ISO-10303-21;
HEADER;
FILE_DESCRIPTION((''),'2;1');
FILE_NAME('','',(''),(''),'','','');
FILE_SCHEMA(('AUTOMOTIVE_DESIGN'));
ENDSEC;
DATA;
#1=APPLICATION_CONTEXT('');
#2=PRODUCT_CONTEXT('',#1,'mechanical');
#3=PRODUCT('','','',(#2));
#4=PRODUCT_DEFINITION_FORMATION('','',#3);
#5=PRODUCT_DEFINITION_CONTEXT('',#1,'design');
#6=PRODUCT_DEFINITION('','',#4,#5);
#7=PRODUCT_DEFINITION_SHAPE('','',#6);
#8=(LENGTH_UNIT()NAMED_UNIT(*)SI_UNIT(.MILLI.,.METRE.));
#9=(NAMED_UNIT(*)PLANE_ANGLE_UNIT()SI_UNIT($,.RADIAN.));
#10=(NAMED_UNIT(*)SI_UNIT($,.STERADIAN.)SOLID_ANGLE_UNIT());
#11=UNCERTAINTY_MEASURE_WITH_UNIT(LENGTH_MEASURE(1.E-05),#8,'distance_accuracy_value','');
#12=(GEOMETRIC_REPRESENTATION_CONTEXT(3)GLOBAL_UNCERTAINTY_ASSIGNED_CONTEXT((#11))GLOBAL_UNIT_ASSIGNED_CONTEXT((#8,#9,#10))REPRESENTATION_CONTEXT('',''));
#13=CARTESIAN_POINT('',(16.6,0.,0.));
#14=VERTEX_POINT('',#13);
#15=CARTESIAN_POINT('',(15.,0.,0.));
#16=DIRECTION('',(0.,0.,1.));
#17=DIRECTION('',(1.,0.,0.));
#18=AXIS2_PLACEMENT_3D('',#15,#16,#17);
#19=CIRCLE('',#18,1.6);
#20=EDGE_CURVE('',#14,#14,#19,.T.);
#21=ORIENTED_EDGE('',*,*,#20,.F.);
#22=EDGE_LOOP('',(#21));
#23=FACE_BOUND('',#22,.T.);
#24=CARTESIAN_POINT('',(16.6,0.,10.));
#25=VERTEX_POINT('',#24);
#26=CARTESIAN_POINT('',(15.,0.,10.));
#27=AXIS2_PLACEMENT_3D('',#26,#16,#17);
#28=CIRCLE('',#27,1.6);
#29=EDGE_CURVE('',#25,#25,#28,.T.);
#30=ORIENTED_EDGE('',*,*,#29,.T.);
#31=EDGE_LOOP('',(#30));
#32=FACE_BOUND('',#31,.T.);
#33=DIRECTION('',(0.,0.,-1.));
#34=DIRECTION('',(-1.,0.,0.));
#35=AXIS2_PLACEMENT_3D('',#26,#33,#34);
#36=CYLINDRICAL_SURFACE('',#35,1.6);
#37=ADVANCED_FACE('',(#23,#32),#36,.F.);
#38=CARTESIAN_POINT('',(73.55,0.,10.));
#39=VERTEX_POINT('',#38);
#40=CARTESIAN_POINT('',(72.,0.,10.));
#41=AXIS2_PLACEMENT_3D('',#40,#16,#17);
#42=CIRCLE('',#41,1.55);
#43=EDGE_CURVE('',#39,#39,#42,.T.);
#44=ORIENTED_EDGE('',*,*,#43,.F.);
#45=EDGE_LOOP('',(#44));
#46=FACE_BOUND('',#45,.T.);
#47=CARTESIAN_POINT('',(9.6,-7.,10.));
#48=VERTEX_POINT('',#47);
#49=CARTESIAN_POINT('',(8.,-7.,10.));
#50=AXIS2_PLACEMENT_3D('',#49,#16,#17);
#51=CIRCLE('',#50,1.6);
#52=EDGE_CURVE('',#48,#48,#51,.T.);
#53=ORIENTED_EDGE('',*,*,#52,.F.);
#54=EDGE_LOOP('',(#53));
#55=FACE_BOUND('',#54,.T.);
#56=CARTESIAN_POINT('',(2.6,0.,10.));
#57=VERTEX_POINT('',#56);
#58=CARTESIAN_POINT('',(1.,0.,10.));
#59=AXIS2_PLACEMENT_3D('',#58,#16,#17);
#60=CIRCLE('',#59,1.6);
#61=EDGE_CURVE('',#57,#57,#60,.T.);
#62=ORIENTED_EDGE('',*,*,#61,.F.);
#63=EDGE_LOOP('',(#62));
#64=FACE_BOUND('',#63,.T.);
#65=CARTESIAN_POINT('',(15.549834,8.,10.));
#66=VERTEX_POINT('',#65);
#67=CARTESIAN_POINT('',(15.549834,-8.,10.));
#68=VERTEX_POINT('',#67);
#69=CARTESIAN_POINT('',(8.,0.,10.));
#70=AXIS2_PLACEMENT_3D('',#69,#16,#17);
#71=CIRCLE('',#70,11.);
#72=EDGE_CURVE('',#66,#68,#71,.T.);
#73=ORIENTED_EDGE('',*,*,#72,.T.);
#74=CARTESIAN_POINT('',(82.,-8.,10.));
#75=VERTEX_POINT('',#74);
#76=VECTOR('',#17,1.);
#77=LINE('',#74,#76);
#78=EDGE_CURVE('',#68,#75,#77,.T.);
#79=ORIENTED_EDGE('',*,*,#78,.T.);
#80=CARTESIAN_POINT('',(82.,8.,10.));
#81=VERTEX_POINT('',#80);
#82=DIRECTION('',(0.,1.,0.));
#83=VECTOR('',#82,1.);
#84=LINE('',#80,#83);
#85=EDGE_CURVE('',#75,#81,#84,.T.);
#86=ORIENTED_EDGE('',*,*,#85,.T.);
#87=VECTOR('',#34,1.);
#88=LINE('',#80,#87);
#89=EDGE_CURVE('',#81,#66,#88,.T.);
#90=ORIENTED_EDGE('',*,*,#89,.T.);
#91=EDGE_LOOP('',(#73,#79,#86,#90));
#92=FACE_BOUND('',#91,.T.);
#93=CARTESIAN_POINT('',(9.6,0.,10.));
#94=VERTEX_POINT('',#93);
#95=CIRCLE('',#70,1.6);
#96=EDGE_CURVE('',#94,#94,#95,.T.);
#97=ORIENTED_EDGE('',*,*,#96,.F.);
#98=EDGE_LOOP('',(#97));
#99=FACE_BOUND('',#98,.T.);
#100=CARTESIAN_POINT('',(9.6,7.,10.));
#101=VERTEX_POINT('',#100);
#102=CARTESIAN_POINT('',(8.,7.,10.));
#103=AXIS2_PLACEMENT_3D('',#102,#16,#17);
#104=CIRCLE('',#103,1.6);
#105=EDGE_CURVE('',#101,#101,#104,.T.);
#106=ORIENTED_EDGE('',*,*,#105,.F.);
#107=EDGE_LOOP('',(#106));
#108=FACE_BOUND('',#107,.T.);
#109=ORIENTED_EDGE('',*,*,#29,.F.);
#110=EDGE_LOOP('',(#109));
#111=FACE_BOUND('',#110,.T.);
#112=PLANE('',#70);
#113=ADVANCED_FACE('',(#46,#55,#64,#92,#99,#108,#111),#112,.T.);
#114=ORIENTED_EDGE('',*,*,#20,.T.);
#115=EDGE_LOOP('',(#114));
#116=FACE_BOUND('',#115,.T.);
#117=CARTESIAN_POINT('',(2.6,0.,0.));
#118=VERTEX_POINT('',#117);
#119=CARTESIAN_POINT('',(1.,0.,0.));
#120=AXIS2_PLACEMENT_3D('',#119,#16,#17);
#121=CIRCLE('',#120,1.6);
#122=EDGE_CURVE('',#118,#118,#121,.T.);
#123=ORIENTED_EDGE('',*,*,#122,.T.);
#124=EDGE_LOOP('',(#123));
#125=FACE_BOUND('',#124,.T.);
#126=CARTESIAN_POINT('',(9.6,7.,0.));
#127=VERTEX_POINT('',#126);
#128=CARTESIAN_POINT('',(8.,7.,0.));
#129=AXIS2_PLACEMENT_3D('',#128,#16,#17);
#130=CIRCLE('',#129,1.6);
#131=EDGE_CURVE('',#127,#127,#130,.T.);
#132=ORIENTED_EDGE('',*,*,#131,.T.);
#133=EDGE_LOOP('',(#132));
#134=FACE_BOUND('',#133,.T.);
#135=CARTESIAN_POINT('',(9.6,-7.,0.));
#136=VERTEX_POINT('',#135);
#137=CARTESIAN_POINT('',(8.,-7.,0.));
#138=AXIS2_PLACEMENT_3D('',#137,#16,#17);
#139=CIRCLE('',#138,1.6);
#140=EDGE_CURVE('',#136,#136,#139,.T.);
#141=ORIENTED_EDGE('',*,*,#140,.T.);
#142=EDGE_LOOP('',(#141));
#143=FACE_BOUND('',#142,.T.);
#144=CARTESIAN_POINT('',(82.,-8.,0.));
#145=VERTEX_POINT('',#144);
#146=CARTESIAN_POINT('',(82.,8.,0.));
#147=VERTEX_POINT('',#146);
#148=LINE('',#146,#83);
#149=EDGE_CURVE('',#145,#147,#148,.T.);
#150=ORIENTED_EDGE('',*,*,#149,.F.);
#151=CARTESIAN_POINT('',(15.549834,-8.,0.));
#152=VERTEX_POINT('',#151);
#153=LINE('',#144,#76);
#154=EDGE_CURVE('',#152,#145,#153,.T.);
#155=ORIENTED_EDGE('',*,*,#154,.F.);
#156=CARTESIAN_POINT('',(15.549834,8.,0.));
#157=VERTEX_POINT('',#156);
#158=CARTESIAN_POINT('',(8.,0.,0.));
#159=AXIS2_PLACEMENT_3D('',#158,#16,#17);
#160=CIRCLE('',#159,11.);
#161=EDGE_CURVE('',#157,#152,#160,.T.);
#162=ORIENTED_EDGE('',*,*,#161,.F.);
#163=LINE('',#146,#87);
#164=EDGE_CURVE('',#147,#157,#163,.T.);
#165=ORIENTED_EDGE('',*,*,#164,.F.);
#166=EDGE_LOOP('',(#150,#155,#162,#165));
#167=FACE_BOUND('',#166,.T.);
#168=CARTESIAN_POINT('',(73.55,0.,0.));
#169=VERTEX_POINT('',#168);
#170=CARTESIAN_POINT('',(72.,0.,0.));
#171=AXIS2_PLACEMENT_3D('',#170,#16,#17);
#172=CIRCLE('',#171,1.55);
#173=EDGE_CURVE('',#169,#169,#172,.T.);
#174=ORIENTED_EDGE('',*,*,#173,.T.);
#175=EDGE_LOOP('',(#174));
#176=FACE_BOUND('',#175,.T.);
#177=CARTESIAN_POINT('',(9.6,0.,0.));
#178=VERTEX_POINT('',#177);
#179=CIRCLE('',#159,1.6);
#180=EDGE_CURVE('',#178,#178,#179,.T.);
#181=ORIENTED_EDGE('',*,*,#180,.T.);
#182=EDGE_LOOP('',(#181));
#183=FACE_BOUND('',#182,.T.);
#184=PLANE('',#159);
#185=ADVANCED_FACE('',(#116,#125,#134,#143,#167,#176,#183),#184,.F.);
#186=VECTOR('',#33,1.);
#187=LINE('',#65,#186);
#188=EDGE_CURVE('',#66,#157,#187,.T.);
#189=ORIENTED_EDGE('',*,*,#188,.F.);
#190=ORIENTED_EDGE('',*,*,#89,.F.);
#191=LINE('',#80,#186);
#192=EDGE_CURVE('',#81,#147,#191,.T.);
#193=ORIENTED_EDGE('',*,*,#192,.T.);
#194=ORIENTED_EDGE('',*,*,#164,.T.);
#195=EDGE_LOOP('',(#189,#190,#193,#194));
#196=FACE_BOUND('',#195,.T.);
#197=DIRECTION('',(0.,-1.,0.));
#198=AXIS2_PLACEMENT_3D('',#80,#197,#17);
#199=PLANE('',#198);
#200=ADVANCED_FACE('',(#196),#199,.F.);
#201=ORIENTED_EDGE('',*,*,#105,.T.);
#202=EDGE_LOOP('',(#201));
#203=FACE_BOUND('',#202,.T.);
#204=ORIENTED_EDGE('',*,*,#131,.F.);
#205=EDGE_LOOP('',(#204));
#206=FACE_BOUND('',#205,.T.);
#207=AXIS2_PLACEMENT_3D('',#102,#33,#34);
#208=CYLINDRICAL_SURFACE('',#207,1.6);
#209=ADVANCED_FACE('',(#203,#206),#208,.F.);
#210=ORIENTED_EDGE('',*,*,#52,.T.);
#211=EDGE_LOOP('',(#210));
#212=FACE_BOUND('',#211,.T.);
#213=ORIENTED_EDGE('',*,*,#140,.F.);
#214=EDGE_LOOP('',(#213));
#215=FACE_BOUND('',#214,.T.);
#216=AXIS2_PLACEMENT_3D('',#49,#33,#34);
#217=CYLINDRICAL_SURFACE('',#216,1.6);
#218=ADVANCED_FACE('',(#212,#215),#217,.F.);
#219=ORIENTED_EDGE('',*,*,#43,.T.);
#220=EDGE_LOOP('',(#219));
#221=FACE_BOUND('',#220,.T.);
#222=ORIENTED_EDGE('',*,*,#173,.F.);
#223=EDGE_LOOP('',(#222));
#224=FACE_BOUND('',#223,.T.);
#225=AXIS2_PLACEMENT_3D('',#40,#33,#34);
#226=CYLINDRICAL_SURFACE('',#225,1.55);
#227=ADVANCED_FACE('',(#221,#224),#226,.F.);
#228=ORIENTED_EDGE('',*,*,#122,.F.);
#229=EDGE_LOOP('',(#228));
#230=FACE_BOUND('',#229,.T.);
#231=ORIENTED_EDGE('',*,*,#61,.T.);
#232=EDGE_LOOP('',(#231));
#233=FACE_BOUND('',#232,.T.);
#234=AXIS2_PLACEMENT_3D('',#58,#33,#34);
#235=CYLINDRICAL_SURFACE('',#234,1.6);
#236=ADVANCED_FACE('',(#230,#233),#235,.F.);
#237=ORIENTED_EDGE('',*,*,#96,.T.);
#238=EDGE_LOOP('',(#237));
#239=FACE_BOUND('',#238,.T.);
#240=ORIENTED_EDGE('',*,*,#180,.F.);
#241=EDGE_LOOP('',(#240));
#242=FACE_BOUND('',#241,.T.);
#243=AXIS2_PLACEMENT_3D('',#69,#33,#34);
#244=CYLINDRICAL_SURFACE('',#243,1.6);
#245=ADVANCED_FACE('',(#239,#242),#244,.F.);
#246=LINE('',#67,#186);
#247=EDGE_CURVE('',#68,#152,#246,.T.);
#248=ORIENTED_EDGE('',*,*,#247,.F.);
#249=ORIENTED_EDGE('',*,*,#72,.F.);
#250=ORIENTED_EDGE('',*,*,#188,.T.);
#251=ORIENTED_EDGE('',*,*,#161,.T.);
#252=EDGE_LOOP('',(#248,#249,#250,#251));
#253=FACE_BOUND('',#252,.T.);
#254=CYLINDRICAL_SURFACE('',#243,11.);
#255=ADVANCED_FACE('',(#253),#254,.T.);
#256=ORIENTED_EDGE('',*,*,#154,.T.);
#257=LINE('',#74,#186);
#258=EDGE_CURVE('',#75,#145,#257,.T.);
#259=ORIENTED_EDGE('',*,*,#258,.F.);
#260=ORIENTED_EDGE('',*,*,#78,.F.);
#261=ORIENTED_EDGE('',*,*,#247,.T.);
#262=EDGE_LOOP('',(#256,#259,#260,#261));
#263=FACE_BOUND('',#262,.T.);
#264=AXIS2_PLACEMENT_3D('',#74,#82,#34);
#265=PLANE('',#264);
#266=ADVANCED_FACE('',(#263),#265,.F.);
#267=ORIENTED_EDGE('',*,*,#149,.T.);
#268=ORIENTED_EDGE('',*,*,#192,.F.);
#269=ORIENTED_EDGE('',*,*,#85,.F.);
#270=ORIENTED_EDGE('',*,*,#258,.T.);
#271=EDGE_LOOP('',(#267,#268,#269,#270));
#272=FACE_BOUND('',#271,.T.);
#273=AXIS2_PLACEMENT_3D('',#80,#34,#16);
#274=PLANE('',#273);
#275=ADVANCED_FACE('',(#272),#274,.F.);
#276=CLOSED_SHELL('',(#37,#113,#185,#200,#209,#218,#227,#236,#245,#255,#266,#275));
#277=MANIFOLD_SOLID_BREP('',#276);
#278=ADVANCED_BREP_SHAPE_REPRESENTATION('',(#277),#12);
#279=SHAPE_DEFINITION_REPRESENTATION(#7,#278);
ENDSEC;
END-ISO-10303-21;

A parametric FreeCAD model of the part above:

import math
import FreeCAD as App
import Part
import Sketcher
from FreeCAD import Vector

doc = App.newDocument("Part")
params = doc.addObject("Spreadsheet::Sheet", "Params")
for row, (alias, value) in enumerate([
    ("sketch1_radius", "11 mm"),
    ("sketch1_diameter", "3.2 mm"),
    ("sketch1_diameter2", "3.1 mm"),
    ("sketch1_height", "16 mm"),
    ("pad1_length", "10 mm"),
], start=1):
    params.set(f"A{row}", alias)
    params.set(f"B{row}", "=" + value)
    params.setAlias(f"B{row}", alias)

body = doc.addObject("PartDesign::Body", "Body")

# Sketch on XY plane
sketch1 = body.newObject("Sketcher::SketchObject", "Sketch")
sketch1.AttachmentSupport = (doc.getObject("XY_Plane"), [""])
sketch1.MapMode = "FlatFace"
sketch1.addGeometry(Part.LineSegment(Vector(82, -8, 0), Vector(82, 8, 0)), False)
sketch1.addGeometry(Part.LineSegment(Vector(82, 8, 0), Vector(15.5, 8, 0)), False)
sketch1.addGeometry(Part.ArcOfCircle(Part.Circle(Vector(8, 0, 0), Vector(0, 0, 1), 11), math.radians(47), math.radians(313)), False)
sketch1.addGeometry(Part.LineSegment(Vector(15.5, -8, 0), Vector(82, -8, 0)), False)
sketch1.addGeometry(Part.Circle(Vector(8, -7, 0), Vector(0, 0, 1), 1.6), False)
sketch1.addGeometry(Part.Circle(Vector(72, 0, 0), Vector(0, 0, 1), 1.6), False)
sketch1.addGeometry(Part.Circle(Vector(15, 0, 0), Vector(0, 0, 1), 1.6), False)
sketch1.addGeometry(Part.Circle(Vector(8, 0, 0), Vector(0, 0, 1), 1.6), False)
sketch1.addGeometry(Part.Circle(Vector(1, 0, 0), Vector(0, 0, 1), 1.6), False)
sketch1.addGeometry(Part.Circle(Vector(8, 7, 0), Vector(0, 0, 1), 1.6), False)
sketch1.addConstraint(Sketcher.Constraint("Coincident", 0, 2, 1, 1))
sketch1.addConstraint(Sketcher.Constraint("Coincident", 1, 2, 2, 1))
sketch1.addConstraint(Sketcher.Constraint("Coincident", 2, 2, 3, 1))
sketch1.addConstraint(Sketcher.Constraint("Coincident", 3, 2, 0, 1))
sketch1.addConstraint(Sketcher.Constraint("Vertical", 0))
sketch1.addConstraint(Sketcher.Constraint("Horizontal", 1))
sketch1.addConstraint(Sketcher.Constraint("Horizontal", 3))
sketch1.addConstraint(Sketcher.Constraint("Coincident", 7, 3, 2, 3))
sketch1.addConstraint(Sketcher.Constraint("Equal", 4, 6))
sketch1.addConstraint(Sketcher.Constraint("Equal", 6, 7))
sketch1.addConstraint(Sketcher.Constraint("Equal", 7, 8))
sketch1.addConstraint(Sketcher.Constraint("Equal", 8, 9))
sketch1.addConstraint(Sketcher.Constraint("Symmetric", 4, 3, 9, 3, -1))
sketch1.addConstraint(Sketcher.Constraint("Symmetric", 1, 2, 2, 2, -1))
sketch1.addConstraint(Sketcher.Constraint("PointOnObject", 5, 3, -1))
sketch1.addConstraint(Sketcher.Constraint("PointOnObject", 6, 3, -1))
sketch1.addConstraint(Sketcher.Constraint("PointOnObject", 8, 3, -1))
sketch1.addConstraint(Sketcher.Constraint("Vertical", 2, 3, 4, 3))
sketch1.addConstraint(Sketcher.Constraint("Radius", 2, 11.0))
sketch1.addConstraint(Sketcher.Constraint("Diameter", 4, 3.2))
sketch1.addConstraint(Sketcher.Constraint("Diameter", 5, 3.1))
sketch1.addConstraint(Sketcher.Constraint("DistanceY", 0, 1, 0, 2, 16.0))
sketch1.addConstraint(Sketcher.Constraint("DistanceX", -1, 1, 2, 3, 8.0))
sketch1.addConstraint(Sketcher.Constraint("DistanceY", 4, 3, -1, 1, 7.0))
sketch1.addConstraint(Sketcher.Constraint("DistanceX", -1, 1, 5, 3, 72.0))
sketch1.addConstraint(Sketcher.Constraint("DistanceX", -1, 1, 6, 3, 15.0))
sketch1.addConstraint(Sketcher.Constraint("DistanceX", -1, 1, 8, 3, 1.0))
sketch1.addConstraint(Sketcher.Constraint("DistanceX", -1, 1, 0, 2, 82.0))
sketch1.setExpression("Constraints[18]", "Params.sketch1_radius")
sketch1.setExpression("Constraints[19]", "Params.sketch1_diameter")
sketch1.setExpression("Constraints[20]", "Params.sketch1_diameter2")
sketch1.setExpression("Constraints[21]", "Params.sketch1_height")
pad1 = body.newObject("PartDesign::Pad", "Pad")
pad1.Profile = sketch1
pad1.setExpression("Length", "Params.pad1_length")

doc.recompute()
